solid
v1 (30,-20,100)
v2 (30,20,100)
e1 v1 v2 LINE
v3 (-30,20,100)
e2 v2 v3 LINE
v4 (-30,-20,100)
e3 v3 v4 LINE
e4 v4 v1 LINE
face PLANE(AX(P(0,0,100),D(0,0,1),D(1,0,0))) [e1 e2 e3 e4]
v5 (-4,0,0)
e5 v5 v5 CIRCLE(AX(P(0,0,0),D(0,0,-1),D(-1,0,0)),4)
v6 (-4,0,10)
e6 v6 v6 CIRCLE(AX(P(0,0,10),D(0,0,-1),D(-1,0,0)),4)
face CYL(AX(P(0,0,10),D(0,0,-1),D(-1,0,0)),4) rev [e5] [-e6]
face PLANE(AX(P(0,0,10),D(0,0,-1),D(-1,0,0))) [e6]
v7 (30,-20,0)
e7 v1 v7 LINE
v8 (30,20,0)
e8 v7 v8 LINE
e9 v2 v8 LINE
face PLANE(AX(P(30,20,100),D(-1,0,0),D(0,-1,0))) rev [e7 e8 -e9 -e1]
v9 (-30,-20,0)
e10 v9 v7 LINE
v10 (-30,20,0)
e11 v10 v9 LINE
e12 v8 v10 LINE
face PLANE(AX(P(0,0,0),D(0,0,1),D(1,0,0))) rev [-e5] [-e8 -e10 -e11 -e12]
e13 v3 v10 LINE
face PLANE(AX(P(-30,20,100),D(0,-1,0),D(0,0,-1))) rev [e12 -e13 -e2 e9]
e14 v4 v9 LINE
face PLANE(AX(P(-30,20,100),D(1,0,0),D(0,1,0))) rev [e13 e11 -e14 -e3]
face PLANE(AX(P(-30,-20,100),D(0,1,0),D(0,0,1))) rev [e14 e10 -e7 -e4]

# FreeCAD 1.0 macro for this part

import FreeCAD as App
import Part
import Sketcher

V = App.Vector
Q = App.Units.Quantity

doc = App.newDocument("Part")
body = doc.addObject("PartDesign::Body", "Body")

# Sketch on XY plane
sketch1 = body.newObject("Sketcher::SketchObject", "Sketch")
sketch1.AttachmentSupport = (doc.getObject("XY_Plane"), [""])
sketch1.MapMode = "FlatFace"
sketch1.addGeometry([
    Part.LineSegment(V(-30, 20, 0), V(-30, -20, 0)),
    Part.LineSegment(V(-30, -20, 0), V(30, -20, 0)),
    Part.LineSegment(V(30, -20, 0), V(30, 20, 0)),
    Part.LineSegment(V(30, 20, 0), V(-30, 20, 0)),
], False)
sketch1.addConstraint([
    Sketcher.Constraint("Coincident", 0, 2, 1, 1),
    Sketcher.Constraint("Coincident", 1, 2, 2, 1),
    Sketcher.Constraint("Coincident", 2, 2, 3, 1),
    Sketcher.Constraint("Coincident", 3, 2, 0, 1),
    Sketcher.Constraint("Vertical", 0),
    Sketcher.Constraint("Horizontal", 1),
    Sketcher.Constraint("Vertical", 2),
    Sketcher.Constraint("Horizontal", 3),
    Sketcher.Constraint("Symmetric", 0, 2, 2, 2, -1, 1),
    Sketcher.Constraint("DistanceX", 1, 1, 1, 2, Q("60 mm")),
    Sketcher.Constraint("DistanceY", 0, 2, 0, 1, Q("40 mm")),
])
pad1 = body.newObject("PartDesign::Pad", "Pad")
pad1.Profile = sketch1
pad1.Length = 100

# Sketch on XY plane
sketch2 = body.newObject("Sketcher::SketchObject", "Sketch001")
sketch2.AttachmentSupport = (doc.getObject("XY_Plane"), [""])
sketch2.MapMode = "FlatFace"
sketch2.addGeometry(Part.Circle(V(0, 0, 0), V(0, 0, 1), 4), False)
sketch2.addConstraint([
    Sketcher.Constraint("Coincident", 0, 3, -1, 1),
    Sketcher.Constraint("Diameter", 0, Q("8 mm")),
])
pocket1 = body.newObject("PartDesign::Pocket", "Pocket")
pocket1.Profile = sketch2
pocket1.Length = 10
pocket1.Reversed = True

doc.recompute()
